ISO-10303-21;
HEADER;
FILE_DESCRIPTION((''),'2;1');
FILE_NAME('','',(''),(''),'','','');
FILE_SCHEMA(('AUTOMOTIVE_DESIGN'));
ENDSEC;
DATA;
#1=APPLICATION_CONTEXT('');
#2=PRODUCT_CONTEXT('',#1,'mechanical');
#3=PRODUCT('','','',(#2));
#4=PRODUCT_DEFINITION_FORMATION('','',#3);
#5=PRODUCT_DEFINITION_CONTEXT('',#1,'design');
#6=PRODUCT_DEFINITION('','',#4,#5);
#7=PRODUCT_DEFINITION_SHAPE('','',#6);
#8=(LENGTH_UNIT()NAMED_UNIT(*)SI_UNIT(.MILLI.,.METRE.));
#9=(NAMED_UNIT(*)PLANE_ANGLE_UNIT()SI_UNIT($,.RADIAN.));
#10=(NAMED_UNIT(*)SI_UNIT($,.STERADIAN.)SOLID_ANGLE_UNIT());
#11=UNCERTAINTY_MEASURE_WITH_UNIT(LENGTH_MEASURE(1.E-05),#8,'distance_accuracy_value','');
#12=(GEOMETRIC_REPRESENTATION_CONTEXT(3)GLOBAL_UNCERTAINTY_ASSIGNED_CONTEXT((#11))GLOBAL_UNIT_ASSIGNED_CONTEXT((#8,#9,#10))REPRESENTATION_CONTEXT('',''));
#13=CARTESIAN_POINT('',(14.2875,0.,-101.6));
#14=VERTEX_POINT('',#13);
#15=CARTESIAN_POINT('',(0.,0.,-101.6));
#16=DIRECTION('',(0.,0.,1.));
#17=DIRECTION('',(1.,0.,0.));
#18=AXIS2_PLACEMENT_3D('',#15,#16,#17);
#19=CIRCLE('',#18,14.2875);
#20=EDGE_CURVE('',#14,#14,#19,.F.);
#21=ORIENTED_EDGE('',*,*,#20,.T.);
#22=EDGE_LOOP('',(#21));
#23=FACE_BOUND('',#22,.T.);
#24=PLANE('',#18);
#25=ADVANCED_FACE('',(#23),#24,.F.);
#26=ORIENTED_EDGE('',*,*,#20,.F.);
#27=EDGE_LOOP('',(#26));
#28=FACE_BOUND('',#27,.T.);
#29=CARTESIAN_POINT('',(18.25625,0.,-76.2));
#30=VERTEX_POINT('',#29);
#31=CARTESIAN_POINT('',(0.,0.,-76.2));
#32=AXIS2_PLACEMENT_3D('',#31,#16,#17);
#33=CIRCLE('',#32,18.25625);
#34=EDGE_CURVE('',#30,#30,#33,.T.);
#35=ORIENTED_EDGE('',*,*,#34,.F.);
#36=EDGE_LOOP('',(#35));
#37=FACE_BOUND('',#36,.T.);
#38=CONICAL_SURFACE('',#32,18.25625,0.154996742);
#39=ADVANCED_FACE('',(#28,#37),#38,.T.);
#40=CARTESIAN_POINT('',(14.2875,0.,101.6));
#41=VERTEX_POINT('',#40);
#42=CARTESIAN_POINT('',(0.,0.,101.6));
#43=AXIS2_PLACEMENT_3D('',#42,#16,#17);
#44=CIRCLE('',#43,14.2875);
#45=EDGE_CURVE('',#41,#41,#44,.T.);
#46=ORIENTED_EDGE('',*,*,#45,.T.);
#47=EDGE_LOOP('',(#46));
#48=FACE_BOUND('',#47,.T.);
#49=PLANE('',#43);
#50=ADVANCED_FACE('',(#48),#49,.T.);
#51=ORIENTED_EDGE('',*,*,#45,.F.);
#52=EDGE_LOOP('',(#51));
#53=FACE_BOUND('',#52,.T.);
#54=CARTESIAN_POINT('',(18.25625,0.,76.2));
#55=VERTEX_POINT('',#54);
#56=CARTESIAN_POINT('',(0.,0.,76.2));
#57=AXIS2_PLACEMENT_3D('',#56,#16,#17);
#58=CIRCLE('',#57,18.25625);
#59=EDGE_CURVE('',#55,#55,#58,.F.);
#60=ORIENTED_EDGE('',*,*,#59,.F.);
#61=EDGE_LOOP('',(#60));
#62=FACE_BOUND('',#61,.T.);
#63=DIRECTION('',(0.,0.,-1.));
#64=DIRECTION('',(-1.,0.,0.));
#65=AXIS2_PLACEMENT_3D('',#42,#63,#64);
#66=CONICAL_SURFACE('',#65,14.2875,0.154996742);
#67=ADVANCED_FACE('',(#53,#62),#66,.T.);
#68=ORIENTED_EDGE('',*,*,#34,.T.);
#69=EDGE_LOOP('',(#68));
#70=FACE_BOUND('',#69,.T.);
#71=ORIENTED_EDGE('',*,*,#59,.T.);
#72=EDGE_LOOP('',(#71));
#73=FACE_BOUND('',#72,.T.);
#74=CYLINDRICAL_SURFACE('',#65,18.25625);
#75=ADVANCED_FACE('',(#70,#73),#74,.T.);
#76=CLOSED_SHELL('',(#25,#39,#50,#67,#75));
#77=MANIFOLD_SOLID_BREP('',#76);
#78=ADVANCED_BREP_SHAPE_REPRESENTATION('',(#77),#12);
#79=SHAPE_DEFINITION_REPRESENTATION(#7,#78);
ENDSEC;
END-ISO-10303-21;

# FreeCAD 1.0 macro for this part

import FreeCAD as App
import Part
import Sketcher

V = App.Vector
Q = App.Units.Quantity


def edges_at(feature, points):
    """Names of the edges that pass closest to the given points."""
    edges = feature.Shape.Edges
    near = lambda p: min(range(len(edges)), key=lambda i: edges[i].distToShape(Part.Vertex(*p))[0])
    return sorted({f"Edge{near(p) + 1}" for p in points})

doc = App.newDocument("Part")
body = doc.addObject("PartDesign::Body", "Body")

sketch1 = doc.addObject("Sketcher::SketchObject", "Sketch")
body.addObject(sketch1)
sketch1.AttachmentSupport = (doc.XY_Plane, [""])
sketch1.MapMode = "FlatFace"
sketch1.addGeometry(Part.Circle(V(0, 0, 0), V(0, 0, 1), 18), False)
sketch1.addConstraint([
    Sketcher.Constraint("Coincident", 0, 3, -1, 1),
    Sketcher.Constraint("Diameter", 0, Q("1.4375 in")),
])
pad1 = doc.addObject("PartDesign::Pad", "Pad")
body.addObject(pad1)
pad1.Profile = sketch1
pad1.Length = Q("8 in")
pad1.Midplane = True
doc.recompute()

chamfer = doc.addObject("PartDesign::Chamfer", "Chamfer")
body.addObject(chamfer)
chamfer.Base = (pad1, edges_at(pad1, [(-18.256, 0, 101.6)]))
chamfer.ChamferType = "Two distances"
chamfer.Size = Q("1 in")
chamfer.Size2 = Q("0.15625 in")
doc.recompute()

chamfer2 = doc.addObject("PartDesign::Chamfer", "Chamfer001")
body.addObject(chamfer2)
chamfer2.Base = (chamfer, edges_at(chamfer, [(-18.256, 0, -101.6)]))
chamfer2.ChamferType = "Two distances"
chamfer2.Size = Q("0.15625 in")
chamfer2.Size2 = Q("1 in")
chamfer2.FlipDirection = True

doc.recompute()
